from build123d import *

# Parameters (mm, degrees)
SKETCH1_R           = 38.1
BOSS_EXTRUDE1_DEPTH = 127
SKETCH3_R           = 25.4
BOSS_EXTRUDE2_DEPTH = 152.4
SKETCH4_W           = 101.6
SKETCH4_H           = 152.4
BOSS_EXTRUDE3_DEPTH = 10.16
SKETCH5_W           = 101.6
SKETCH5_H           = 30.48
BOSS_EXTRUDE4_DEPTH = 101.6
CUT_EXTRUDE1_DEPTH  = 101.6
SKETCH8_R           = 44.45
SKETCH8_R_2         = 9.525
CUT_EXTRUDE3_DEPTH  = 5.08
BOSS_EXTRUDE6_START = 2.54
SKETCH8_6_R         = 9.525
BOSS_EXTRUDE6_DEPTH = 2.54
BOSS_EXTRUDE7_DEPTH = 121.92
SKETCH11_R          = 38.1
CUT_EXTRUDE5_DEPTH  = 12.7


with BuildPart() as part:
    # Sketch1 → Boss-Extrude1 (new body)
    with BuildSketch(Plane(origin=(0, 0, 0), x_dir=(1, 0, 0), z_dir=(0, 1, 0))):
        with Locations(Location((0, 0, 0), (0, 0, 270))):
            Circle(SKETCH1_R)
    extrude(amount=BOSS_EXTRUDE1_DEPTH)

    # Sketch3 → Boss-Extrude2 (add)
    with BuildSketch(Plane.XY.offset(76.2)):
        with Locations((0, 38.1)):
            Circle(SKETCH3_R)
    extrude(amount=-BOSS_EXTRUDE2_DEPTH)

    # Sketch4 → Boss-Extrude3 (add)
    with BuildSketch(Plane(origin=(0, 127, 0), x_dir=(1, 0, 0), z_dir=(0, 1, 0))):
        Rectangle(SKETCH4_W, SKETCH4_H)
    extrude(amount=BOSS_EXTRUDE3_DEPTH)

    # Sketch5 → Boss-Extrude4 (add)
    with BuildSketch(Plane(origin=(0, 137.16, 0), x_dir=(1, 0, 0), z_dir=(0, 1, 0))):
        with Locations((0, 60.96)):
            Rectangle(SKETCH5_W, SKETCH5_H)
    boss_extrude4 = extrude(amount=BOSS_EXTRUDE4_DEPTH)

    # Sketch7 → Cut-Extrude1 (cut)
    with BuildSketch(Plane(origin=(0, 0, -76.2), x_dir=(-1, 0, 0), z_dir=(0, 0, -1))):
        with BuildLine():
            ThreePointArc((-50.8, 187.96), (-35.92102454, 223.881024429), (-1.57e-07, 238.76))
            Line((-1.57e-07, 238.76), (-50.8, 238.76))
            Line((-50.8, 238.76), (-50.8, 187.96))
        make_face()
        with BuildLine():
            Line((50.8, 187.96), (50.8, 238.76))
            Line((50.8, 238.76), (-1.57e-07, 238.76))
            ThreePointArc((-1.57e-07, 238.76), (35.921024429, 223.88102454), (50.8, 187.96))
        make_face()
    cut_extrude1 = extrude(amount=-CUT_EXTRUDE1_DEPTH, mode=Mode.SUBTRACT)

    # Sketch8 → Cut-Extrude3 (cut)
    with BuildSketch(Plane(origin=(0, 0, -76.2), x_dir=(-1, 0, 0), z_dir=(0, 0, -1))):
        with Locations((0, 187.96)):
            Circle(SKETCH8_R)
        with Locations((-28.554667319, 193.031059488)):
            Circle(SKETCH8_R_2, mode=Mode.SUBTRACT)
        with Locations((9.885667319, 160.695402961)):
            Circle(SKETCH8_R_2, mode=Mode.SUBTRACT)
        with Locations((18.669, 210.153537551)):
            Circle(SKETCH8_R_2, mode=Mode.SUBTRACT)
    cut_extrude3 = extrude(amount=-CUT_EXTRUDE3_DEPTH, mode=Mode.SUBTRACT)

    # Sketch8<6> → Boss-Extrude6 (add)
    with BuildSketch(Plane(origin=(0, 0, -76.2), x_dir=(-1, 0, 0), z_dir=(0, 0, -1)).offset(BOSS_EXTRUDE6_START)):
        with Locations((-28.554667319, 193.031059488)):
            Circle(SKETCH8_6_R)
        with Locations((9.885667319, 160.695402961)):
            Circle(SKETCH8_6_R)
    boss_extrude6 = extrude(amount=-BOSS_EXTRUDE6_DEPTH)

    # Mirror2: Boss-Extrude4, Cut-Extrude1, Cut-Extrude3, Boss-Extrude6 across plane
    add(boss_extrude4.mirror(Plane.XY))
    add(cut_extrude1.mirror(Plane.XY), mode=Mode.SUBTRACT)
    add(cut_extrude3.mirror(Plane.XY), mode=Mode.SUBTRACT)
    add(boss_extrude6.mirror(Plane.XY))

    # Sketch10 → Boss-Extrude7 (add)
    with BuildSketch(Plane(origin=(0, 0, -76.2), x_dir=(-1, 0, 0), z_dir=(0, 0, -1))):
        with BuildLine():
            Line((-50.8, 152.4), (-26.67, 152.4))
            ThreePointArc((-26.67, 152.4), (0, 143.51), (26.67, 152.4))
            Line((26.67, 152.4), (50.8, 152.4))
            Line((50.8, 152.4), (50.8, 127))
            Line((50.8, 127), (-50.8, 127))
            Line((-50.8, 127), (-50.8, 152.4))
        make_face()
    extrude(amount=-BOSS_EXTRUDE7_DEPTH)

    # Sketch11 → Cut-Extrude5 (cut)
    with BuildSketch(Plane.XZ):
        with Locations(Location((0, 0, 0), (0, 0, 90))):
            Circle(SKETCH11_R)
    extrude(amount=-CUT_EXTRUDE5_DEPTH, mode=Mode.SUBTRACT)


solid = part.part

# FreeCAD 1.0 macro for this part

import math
import FreeCAD as App
import Part
import Sketcher

V = App.Vector
Q = App.Units.Quantity

doc = App.newDocument("Part")
body = doc.addObject("PartDesign::Body", "Body")

# Sketch on XZ plane
sketch1 = body.newObject("Sketcher::SketchObject", "Sketch")
sketch1.AttachmentSupport = (doc.getObject("XZ_Plane"), [""])
sketch1.MapMode = "FlatFace"
sketch1.addGeometry(Part.Circle(V(0, 0, 0), V(0, 0, 1), 38.1), False)
sketch1.addConstraint(Sketcher.Constraint("Coincident", 0, 3, -1, 1))
sketch1.addConstraint(Sketcher.Constraint("Diameter", 0, Q("3 in")))
pad1 = body.newObject("PartDesign::Pad", "Pad")
pad1.Profile = sketch1
pad1.Length = Q("5 in")
pad1.Reversed = True

# Sketch on XY plane
sketch2 = body.newObject("Sketcher::SketchObject", "Sketch001")
sketch2.AttachmentSupport = (doc.getObject("XY_Plane"), [""])
sketch2.MapMode = "FlatFace"
sketch2.AttachmentOffset = App.Placement(V(0, 0, 3 * 25.4), App.Rotation())
sketch2.addGeometry(Part.Circle(V(0, 38.1, 0), V(0, 0, 1), 25.4), False)
sketch2.addConstraint(Sketcher.Constraint("PointOnObject", 0, 3, -2))
sketch2.addConstraint(Sketcher.Constraint("Diameter", 0, Q("2 in")))
sketch2.addConstraint(Sketcher.Constraint("DistanceY", -1, 1, 0, 3, Q("1.5 in")))
pad2 = body.newObject("PartDesign::Pad", "Pad001")
pad2.Profile = sketch2
pad2.Length = Q("6 in")
pad2.Reversed = True

# Sketch on XZ plane
sketch3 = body.newObject("Sketcher::SketchObject", "Sketch002")
sketch3.AttachmentSupport = (doc.getObject("XZ_Plane"), [""])
sketch3.MapMode = "FlatFace"
sketch3.AttachmentOffset = App.Placement(V(0, 0, -5 * 25.4), App.Rotation())
sketch3.addGeometry(Part.LineSegment(V(-50.8, -76.2, 0), V(-50.8, 76.2, 0)), False)
sketch3.addGeometry(Part.LineSegment(V(-50.8, 76.2, 0), V(50.8, 76.2, 0)), False)
sketch3.addGeometry(Part.LineSegment(V(50.8, 76.2, 0), V(50.8, -76.2, 0)), False)
sketch3.addGeometry(Part.LineSegment(V(50.8, -76.2, 0), V(-50.8, -76.2, 0)), False)
sketch3.addConstraint(Sketcher.Constraint("Coincident", 0, 2, 1, 1))
sketch3.addConstraint(Sketcher.Constraint("Coincident", 1, 2, 2, 1))
sketch3.addConstraint(Sketcher.Constraint("Coincident", 2, 2, 3, 1))
sketch3.addConstraint(Sketcher.Constraint("Coincident", 3, 2, 0, 1))
sketch3.addConstraint(Sketcher.Constraint("Vertical", 0))
sketch3.addConstraint(Sketcher.Constraint("Horizontal", 1))
sketch3.addConstraint(Sketcher.Constraint("Vertical", 2))
sketch3.addConstraint(Sketcher.Constraint("Horizontal", 3))
sketch3.addConstraint(Sketcher.Constraint("Symmetric", 0, 2, 2, 2, -1, 1))
sketch3.addConstraint(Sketcher.Constraint("DistanceX", 1, 1, 1, 2, Q("4 in")))
sketch3.addConstraint(Sketcher.Constraint("DistanceY", 0, 1, 0, 2, Q("6 in")))
pad3 = body.newObject("PartDesign::Pad", "Pad002")
pad3.Profile = sketch3
pad3.Length = Q("0.4 in")
pad3.Reversed = True

# Sketch on XZ plane
sketch4 = body.newObject("Sketcher::SketchObject", "Sketch003")
sketch4.AttachmentSupport = (doc.getObject("XZ_Plane"), [""])
sketch4.MapMode = "FlatFace"
sketch4.AttachmentOffset = App.Placement(V(0, 0, -5.4 * 25.4), App.Rotation())
sketch4.addGeometry(Part.LineSegment(V(-50.8, -76.2, 0), V(-50.8, -45.72, 0)), False)
sketch4.addGeometry(Part.LineSegment(V(-50.8, -45.72, 0), V(50.8, -45.72, 0)), False)
sketch4.addGeometry(Part.LineSegment(V(50.8, -45.72, 0), V(50.8, -76.2, 0)), False)
sketch4.addGeometry(Part.LineSegment(V(50.8, -76.2, 0), V(-50.8, -76.2, 0)), False)
sketch4.addConstraint(Sketcher.Constraint("Coincident", 0, 2, 1, 1))
sketch4.addConstraint(Sketcher.Constraint("Coincident", 1, 2, 2, 1))
sketch4.addConstraint(Sketcher.Constraint("Coincident", 2, 2, 3, 1))
sketch4.addConstraint(Sketcher.Constraint("Coincident", 3, 2, 0, 1))
sketch4.addConstraint(Sketcher.Constraint("Vertical", 0))
sketch4.addConstraint(Sketcher.Constraint("Horizontal", 1))
sketch4.addConstraint(Sketcher.Constraint("Vertical", 2))
sketch4.addConstraint(Sketcher.Constraint("Horizontal", 3))
sketch4.addConstraint(Sketcher.Constraint("DistanceX", 1, 1, 1, 2, Q("4 in")))
sketch4.addConstraint(Sketcher.Constraint("DistanceY", 0, 1, 0, 2, Q("1.2 in")))
sketch4.addConstraint(Sketcher.Constraint("DistanceX", 0, 2, -1, 1, Q("2 in")))
sketch4.addConstraint(Sketcher.Constraint("DistanceY", 2, 2, -1, 1, Q("3 in")))
pad4 = body.newObject("PartDesign::Pad", "Pad003")
pad4.Profile = sketch4
pad4.Length = Q("4 in")
pad4.Reversed = True

# Sketch on XY plane
sketch5 = body.newObject("Sketcher::SketchObject", "Sketch004")
sketch5.AttachmentSupport = (doc.getObject("XY_Plane"), [""])
sketch5.MapMode = "FlatFace"
sketch5.AttachmentOffset = App.Placement(V(0, 0, -3 * 25.4), App.Rotation())
sketch5.addGeometry(Part.ArcOfCircle(Part.Circle(V(0, 187.96, 0), V(0, 0, 1), 50.8), math.radians(0), math.radians(90)), False)
sketch5.addGeometry(Part.LineSegment(V(0, 238.76, 0), V(50.8, 238.76, 0)), False)
sketch5.addGeometry(Part.LineSegment(V(50.8, 238.76, 0), V(50.8, 187.96, 0)), False)
sketch5.addGeometry(Part.LineSegment(V(-50.8, 187.96, 0), V(-50.8, 238.76, 0)), False)
sketch5.addGeometry(Part.LineSegment(V(-50.8, 238.76, 0), V(0, 238.76, 0)), False)
sketch5.addGeometry(Part.ArcOfCircle(Part.Circle(V(0, 187.96, 0), V(0, 0, 1), 50.8), math.radians(90), math.radians(180)), False)
sketch5.addConstraint(Sketcher.Constraint("Tangent", 0, 2, 1, 1))
sketch5.addConstraint(Sketcher.Constraint("Coincident", 1, 2, 2, 1))
sketch5.addConstraint(Sketcher.Constraint("Tangent", 2, 2, 0, 1))
sketch5.addConstraint(Sketcher.Constraint("Coincident", 3, 2, 4, 1))
sketch5.addConstraint(Sketcher.Constraint("Tangent", 4, 2, 5, 1))
sketch5.addConstraint(Sketcher.Constraint("Tangent", 5, 2, 3, 1))
sketch5.addConstraint(Sketcher.Constraint("Horizontal", 1))
sketch5.addConstraint(Sketcher.Constraint("Vertical", 2))
sketch5.addConstraint(Sketcher.Constraint("Vertical", 3))
sketch5.addConstraint(Sketcher.Constraint("Horizontal", 4))
sketch5.addConstraint(Sketcher.Constraint("Coincident", 5, 3, 0, 3))
sketch5.addConstraint(Sketcher.Constraint("Equal", 0, 5))
sketch5.addConstraint(Sketcher.Constraint("PointOnObject", 0, 3, -2))
sketch5.addConstraint(Sketcher.Constraint("Radius", 0, Q("2 in")))
sketch5.addConstraint(Sketcher.Constraint("DistanceY", -1, 1, 0, 3, Q("7.4 in")))
pocket1 = body.newObject("PartDesign::Pocket", "Pocket")
pocket1.Profile = sketch5
pocket1.Length = Q("4 in")
pocket1.Reversed = True

# Sketch on XY plane
sketch6 = body.newObject("Sketcher::SketchObject", "Sketch005")
sketch6.AttachmentSupport = (doc.getObject("XY_Plane"), [""])
sketch6.MapMode = "FlatFace"
sketch6.AttachmentOffset = App.Placement(V(0, 0, -3 * 25.4), App.Rotation())
sketch6.addGeometry(Part.Circle(V(0, 187.96, 0), V(0, 0, 1), 44.45), False)
sketch6.addGeometry(Part.Circle(V(-9.885667, 160.695403, 0), V(0, 0, 1), 9.525), False)
sketch6.addGeometry(Part.Circle(V(28.554667, 193.031059, 0), V(0, 0, 1), 9.525), False)
sketch6.addGeometry(Part.Circle(V(-18.669, 210.153538, 0), V(0, 0, 1), 9.525), False)
sketch6.addConstraint(Sketcher.Constraint("Equal", 1, 2))
sketch6.addConstraint(Sketcher.Constraint("Equal", 2, 3))
sketch6.addConstraint(Sketcher.Constraint("PointOnObject", 0, 3, -2))
sketch6.addConstraint(Sketcher.Constraint("Diameter", 0, Q("3.5 in")))
sketch6.addConstraint(Sketcher.Constraint("Diameter", 1, Q("0.75 in")))
sketch6.addConstraint(Sketcher.Constraint("DistanceY", -1, 1, 0, 3, Q("7.4 in")))
sketch6.addConstraint(Sketcher.Constraint("DistanceX", 3, 3, -1, 1, Q("0.735 in")))
sketch6.addConstraint(Sketcher.Constraint("DistanceY", -1, 1, 2, 3, 193.031059))
sketch6.addConstraint(Sketcher.Constraint("DistanceY", 2, 3, 3, 3, 17.122478))
sketch6.addConstraint(Sketcher.Constraint("DistanceX", 1, 3, -1, 1, 9.885667))
sketch6.addConstraint(Sketcher.Constraint("DistanceY", -1, 1, 1, 3, 160.695403))
sketch6.addConstraint(Sketcher.Constraint("DistanceX", -1, 1, 2, 3, 28.554667))
pocket2 = body.newObject("PartDesign::Pocket", "Pocket001")
pocket2.Profile = sketch6
pocket2.Length = Q("0.2 in")
pocket2.Reversed = True

# Sketch on XY plane
sketch7 = body.newObject("Sketcher::SketchObject", "Sketch006")
sketch7.AttachmentSupport = (doc.getObject("XY_Plane"), [""])
sketch7.MapMode = "FlatFace"
sketch7.AttachmentOffset = App.Placement(V(0, 0, -3.1 * 25.4), App.Rotation())
sketch7.addGeometry(Part.Circle(V(28.554667, 193.031059, 0), V(0, 0, 1), 9.525), False)
sketch7.addGeometry(Part.Circle(V(-9.885667, 160.695403, 0), V(0, 0, 1), 9.525), False)
sketch7.addConstraint(Sketcher.Constraint("Equal", 0, 1))
sketch7.addConstraint(Sketcher.Constraint("Diameter", 0, Q("0.75 in")))
sketch7.addConstraint(Sketcher.Constraint("DistanceY", -1, 1, 0, 3, 193.031059))
sketch7.addConstraint(Sketcher.Constraint("DistanceX", -1, 1, 0, 3, 28.554667))
sketch7.addConstraint(Sketcher.Constraint("DistanceX", 1, 3, -1, 1, 9.885667))
sketch7.addConstraint(Sketcher.Constraint("DistanceY", -1, 1, 1, 3, 160.695403))
pad5 = body.newObject("PartDesign::Pad", "Pad004")
pad5.Profile = sketch7
pad5.Length = Q("0.1 in")
doc.recompute()

mirrored = body.newObject("PartDesign::Mirrored", "Mirrored")
mirrored.Originals = [pad4, pocket1, pocket2, pad5]
mirrored.MirrorPlane = (doc.getObject("XY_Plane"), [""])
body.Tip = mirrored

# Sketch on XY plane
sketch8 = body.newObject("Sketcher::SketchObject", "Sketch007")
sketch8.AttachmentSupport = (doc.getObject("XY_Plane"), [""])
sketch8.MapMode = "FlatFace"
sketch8.AttachmentOffset = App.Placement(V(0, 0, -3 * 25.4), App.Rotation())
sketch8.addGeometry(Part.LineSegment(V(26.67, 152.4, 0), V(50.8, 152.4, 0)), False)
sketch8.addGeometry(Part.LineSegment(V(50.8, 152.4, 0), V(50.8, 127, 0)), False)
sketch8.addGeometry(Part.LineSegment(V(50.8, 127, 0), V(-50.8, 127, 0)), False)
sketch8.addGeometry(Part.LineSegment(V(-50.8, 127, 0), V(-50.8, 152.4, 0)), False)
sketch8.addGeometry(Part.LineSegment(V(-50.8, 152.4, 0), V(-26.67, 152.4, 0)), False)
sketch8.addGeometry(Part.ArcOfCircle(Part.Circle(V(0, 187.96, 0), V(0, 0, 1), 44.45), math.radians(-126.869898), math.radians(-53.130102)), False)
sketch8.addConstraint(Sketcher.Constraint("Coincident", 0, 2, 1, 1))
sketch8.addConstraint(Sketcher.Constraint("Coincident", 1, 2, 2, 1))
sketch8.addConstraint(Sketcher.Constraint("Coincident", 2, 2, 3, 1))
sketch8.addConstraint(Sketcher.Constraint("Coincident", 3, 2, 4, 1))
sketch8.addConstraint(Sketcher.Constraint("Coincident", 4, 2, 5, 1))
sketch8.addConstraint(Sketcher.Constraint("Coincident", 5, 2, 0, 1))
sketch8.addConstraint(Sketcher.Constraint("Horizontal", 0))
sketch8.addConstraint(Sketcher.Constraint("Vertical", 1))
sketch8.addConstraint(Sketcher.Constraint("Horizontal", 2))
sketch8.addConstraint(Sketcher.Constraint("Vertical", 3))
sketch8.addConstraint(Sketcher.Constraint("Horizontal", 4))
sketch8.addConstraint(Sketcher.Constraint("Symmetric", 0, 2, 3, 2, -2))
sketch8.addConstraint(Sketcher.Constraint("PointOnObject", 5, 3, -2))
sketch8.addConstraint(Sketcher.Constraint("DistanceX", 2, 2, 2, 1, Q("4 in")))
sketch8.addConstraint(Sketcher.Constraint("DistanceY", 1, 2, 1, 1, Q("1 in")))
sketch8.addConstraint(Sketcher.Constraint("Radius", 5, Q("1.75 in")))
sketch8.addConstraint(Sketcher.Constraint("DistanceY", -1, 1, 0, 2, Q("6 in")))
sketch8.addConstraint(Sketcher.Constraint("DistanceX", 0, 1, 0, 2, Q("0.95 in")))
pad6 = body.newObject("PartDesign::Pad", "Pad005")
pad6.Profile = sketch8
pad6.Length = Q("4.8 in")

# Sketch on XZ plane
sketch9 = body.newObject("Sketcher::SketchObject", "Sketch008")
sketch9.AttachmentSupport = (doc.getObject("XZ_Plane"), [""])
sketch9.MapMode = "FlatFace"
sketch9.addGeometry(Part.Circle(V(0, 0, 0), V(0, 0, 1), 38.1), False)
sketch9.addConstraint(Sketcher.Constraint("Coincident", 0, 3, -1, 1))
sketch9.addConstraint(Sketcher.Constraint("Diameter", 0, Q("3 in")))
pocket3 = body.newObject("PartDesign::Pocket", "Pocket002")
pocket3.Profile = sketch9
pocket3.Length = Q("0.5 in")

doc.recompute()
